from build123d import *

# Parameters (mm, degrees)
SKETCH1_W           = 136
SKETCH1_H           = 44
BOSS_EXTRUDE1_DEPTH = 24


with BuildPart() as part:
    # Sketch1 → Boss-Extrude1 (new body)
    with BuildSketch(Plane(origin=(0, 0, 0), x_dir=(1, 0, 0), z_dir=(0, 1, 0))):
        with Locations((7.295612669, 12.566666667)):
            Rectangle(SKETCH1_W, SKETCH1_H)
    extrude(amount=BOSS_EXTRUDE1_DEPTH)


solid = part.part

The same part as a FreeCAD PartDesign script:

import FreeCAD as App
import Part
import Sketcher

V = App.Vector
Q = App.Units.Quantity


def add_polygon(sketch, points):
    """Adds a closed chain of lines whose ends are joined by coincident constraints."""
    first, n = sketch.GeometryCount, len(points)
    for a, b in zip(points, points[1:] + points[:1]):
        sketch.addGeometry(Part.LineSegment(App.Vector(*a, 0), App.Vector(*b, 0)), False)
    for i in range(n):
        sketch.addConstraint(Sketcher.Constraint("Coincident", first + i, 2, first + (i + 1) % n, 1))

doc = App.newDocument("Part")
params = doc.addObject("Spreadsheet::Sheet", "Params")
for row, (alias, value) in enumerate([
    ("sketch1_width", "136 mm"),
    ("sketch1_height", "44 mm"),
    ("pad1_length", "24 mm"),
], start=1):
    params.set(f"A{row}", alias)
    params.set(f"B{row}", "=" + value)
    params.setAlias(f"B{row}", alias)

body = doc.addObject("PartDesign::Body", "Body")

sketch1 = body.newObject("Sketcher::SketchObject", "Sketch")
sketch1.AttachmentSupport = (doc.getObject("XZ_Plane"), [""])
sketch1.MapMode = "FlatFace"
add_polygon(sketch1, [(-61, -35), (-61, 9), (75, 9), (75, -35)])
sketch1.addConstraint(Sketcher.Constraint("Vertical", 0))
sketch1.addConstraint(Sketcher.Constraint("Horizontal", 1))
sketch1.addConstraint(Sketcher.Constraint("Vertical", 2))
sketch1.addConstraint(Sketcher.Constraint("Horizontal", 3))
sketch1.addConstraint(Sketcher.Constraint("DistanceX", 1, 1, 1, 2, Q("136 mm")))
sketch1.addConstraint(Sketcher.Constraint("DistanceY", 0, 1, 0, 2, Q("44 mm")))
sketch1.addConstraint(Sketcher.Constraint("DistanceX", 0, 2, -1, 1, Q("60.704387 mm")))
sketch1.addConstraint(Sketcher.Constraint("DistanceY", -1, 1, 0, 2, Q("9.433333 mm")))
sketch1.setExpression("Constraints[8]", "Params.sketch1_width")
sketch1.setExpression("Constraints[9]", "Params.sketch1_height")
pad1 = body.newObject("PartDesign::Pad", "Pad")
pad1.Profile = sketch1
pad1.setExpression("Length", "Params.pad1_length")
pad1.Reversed = True

doc.recompute()
